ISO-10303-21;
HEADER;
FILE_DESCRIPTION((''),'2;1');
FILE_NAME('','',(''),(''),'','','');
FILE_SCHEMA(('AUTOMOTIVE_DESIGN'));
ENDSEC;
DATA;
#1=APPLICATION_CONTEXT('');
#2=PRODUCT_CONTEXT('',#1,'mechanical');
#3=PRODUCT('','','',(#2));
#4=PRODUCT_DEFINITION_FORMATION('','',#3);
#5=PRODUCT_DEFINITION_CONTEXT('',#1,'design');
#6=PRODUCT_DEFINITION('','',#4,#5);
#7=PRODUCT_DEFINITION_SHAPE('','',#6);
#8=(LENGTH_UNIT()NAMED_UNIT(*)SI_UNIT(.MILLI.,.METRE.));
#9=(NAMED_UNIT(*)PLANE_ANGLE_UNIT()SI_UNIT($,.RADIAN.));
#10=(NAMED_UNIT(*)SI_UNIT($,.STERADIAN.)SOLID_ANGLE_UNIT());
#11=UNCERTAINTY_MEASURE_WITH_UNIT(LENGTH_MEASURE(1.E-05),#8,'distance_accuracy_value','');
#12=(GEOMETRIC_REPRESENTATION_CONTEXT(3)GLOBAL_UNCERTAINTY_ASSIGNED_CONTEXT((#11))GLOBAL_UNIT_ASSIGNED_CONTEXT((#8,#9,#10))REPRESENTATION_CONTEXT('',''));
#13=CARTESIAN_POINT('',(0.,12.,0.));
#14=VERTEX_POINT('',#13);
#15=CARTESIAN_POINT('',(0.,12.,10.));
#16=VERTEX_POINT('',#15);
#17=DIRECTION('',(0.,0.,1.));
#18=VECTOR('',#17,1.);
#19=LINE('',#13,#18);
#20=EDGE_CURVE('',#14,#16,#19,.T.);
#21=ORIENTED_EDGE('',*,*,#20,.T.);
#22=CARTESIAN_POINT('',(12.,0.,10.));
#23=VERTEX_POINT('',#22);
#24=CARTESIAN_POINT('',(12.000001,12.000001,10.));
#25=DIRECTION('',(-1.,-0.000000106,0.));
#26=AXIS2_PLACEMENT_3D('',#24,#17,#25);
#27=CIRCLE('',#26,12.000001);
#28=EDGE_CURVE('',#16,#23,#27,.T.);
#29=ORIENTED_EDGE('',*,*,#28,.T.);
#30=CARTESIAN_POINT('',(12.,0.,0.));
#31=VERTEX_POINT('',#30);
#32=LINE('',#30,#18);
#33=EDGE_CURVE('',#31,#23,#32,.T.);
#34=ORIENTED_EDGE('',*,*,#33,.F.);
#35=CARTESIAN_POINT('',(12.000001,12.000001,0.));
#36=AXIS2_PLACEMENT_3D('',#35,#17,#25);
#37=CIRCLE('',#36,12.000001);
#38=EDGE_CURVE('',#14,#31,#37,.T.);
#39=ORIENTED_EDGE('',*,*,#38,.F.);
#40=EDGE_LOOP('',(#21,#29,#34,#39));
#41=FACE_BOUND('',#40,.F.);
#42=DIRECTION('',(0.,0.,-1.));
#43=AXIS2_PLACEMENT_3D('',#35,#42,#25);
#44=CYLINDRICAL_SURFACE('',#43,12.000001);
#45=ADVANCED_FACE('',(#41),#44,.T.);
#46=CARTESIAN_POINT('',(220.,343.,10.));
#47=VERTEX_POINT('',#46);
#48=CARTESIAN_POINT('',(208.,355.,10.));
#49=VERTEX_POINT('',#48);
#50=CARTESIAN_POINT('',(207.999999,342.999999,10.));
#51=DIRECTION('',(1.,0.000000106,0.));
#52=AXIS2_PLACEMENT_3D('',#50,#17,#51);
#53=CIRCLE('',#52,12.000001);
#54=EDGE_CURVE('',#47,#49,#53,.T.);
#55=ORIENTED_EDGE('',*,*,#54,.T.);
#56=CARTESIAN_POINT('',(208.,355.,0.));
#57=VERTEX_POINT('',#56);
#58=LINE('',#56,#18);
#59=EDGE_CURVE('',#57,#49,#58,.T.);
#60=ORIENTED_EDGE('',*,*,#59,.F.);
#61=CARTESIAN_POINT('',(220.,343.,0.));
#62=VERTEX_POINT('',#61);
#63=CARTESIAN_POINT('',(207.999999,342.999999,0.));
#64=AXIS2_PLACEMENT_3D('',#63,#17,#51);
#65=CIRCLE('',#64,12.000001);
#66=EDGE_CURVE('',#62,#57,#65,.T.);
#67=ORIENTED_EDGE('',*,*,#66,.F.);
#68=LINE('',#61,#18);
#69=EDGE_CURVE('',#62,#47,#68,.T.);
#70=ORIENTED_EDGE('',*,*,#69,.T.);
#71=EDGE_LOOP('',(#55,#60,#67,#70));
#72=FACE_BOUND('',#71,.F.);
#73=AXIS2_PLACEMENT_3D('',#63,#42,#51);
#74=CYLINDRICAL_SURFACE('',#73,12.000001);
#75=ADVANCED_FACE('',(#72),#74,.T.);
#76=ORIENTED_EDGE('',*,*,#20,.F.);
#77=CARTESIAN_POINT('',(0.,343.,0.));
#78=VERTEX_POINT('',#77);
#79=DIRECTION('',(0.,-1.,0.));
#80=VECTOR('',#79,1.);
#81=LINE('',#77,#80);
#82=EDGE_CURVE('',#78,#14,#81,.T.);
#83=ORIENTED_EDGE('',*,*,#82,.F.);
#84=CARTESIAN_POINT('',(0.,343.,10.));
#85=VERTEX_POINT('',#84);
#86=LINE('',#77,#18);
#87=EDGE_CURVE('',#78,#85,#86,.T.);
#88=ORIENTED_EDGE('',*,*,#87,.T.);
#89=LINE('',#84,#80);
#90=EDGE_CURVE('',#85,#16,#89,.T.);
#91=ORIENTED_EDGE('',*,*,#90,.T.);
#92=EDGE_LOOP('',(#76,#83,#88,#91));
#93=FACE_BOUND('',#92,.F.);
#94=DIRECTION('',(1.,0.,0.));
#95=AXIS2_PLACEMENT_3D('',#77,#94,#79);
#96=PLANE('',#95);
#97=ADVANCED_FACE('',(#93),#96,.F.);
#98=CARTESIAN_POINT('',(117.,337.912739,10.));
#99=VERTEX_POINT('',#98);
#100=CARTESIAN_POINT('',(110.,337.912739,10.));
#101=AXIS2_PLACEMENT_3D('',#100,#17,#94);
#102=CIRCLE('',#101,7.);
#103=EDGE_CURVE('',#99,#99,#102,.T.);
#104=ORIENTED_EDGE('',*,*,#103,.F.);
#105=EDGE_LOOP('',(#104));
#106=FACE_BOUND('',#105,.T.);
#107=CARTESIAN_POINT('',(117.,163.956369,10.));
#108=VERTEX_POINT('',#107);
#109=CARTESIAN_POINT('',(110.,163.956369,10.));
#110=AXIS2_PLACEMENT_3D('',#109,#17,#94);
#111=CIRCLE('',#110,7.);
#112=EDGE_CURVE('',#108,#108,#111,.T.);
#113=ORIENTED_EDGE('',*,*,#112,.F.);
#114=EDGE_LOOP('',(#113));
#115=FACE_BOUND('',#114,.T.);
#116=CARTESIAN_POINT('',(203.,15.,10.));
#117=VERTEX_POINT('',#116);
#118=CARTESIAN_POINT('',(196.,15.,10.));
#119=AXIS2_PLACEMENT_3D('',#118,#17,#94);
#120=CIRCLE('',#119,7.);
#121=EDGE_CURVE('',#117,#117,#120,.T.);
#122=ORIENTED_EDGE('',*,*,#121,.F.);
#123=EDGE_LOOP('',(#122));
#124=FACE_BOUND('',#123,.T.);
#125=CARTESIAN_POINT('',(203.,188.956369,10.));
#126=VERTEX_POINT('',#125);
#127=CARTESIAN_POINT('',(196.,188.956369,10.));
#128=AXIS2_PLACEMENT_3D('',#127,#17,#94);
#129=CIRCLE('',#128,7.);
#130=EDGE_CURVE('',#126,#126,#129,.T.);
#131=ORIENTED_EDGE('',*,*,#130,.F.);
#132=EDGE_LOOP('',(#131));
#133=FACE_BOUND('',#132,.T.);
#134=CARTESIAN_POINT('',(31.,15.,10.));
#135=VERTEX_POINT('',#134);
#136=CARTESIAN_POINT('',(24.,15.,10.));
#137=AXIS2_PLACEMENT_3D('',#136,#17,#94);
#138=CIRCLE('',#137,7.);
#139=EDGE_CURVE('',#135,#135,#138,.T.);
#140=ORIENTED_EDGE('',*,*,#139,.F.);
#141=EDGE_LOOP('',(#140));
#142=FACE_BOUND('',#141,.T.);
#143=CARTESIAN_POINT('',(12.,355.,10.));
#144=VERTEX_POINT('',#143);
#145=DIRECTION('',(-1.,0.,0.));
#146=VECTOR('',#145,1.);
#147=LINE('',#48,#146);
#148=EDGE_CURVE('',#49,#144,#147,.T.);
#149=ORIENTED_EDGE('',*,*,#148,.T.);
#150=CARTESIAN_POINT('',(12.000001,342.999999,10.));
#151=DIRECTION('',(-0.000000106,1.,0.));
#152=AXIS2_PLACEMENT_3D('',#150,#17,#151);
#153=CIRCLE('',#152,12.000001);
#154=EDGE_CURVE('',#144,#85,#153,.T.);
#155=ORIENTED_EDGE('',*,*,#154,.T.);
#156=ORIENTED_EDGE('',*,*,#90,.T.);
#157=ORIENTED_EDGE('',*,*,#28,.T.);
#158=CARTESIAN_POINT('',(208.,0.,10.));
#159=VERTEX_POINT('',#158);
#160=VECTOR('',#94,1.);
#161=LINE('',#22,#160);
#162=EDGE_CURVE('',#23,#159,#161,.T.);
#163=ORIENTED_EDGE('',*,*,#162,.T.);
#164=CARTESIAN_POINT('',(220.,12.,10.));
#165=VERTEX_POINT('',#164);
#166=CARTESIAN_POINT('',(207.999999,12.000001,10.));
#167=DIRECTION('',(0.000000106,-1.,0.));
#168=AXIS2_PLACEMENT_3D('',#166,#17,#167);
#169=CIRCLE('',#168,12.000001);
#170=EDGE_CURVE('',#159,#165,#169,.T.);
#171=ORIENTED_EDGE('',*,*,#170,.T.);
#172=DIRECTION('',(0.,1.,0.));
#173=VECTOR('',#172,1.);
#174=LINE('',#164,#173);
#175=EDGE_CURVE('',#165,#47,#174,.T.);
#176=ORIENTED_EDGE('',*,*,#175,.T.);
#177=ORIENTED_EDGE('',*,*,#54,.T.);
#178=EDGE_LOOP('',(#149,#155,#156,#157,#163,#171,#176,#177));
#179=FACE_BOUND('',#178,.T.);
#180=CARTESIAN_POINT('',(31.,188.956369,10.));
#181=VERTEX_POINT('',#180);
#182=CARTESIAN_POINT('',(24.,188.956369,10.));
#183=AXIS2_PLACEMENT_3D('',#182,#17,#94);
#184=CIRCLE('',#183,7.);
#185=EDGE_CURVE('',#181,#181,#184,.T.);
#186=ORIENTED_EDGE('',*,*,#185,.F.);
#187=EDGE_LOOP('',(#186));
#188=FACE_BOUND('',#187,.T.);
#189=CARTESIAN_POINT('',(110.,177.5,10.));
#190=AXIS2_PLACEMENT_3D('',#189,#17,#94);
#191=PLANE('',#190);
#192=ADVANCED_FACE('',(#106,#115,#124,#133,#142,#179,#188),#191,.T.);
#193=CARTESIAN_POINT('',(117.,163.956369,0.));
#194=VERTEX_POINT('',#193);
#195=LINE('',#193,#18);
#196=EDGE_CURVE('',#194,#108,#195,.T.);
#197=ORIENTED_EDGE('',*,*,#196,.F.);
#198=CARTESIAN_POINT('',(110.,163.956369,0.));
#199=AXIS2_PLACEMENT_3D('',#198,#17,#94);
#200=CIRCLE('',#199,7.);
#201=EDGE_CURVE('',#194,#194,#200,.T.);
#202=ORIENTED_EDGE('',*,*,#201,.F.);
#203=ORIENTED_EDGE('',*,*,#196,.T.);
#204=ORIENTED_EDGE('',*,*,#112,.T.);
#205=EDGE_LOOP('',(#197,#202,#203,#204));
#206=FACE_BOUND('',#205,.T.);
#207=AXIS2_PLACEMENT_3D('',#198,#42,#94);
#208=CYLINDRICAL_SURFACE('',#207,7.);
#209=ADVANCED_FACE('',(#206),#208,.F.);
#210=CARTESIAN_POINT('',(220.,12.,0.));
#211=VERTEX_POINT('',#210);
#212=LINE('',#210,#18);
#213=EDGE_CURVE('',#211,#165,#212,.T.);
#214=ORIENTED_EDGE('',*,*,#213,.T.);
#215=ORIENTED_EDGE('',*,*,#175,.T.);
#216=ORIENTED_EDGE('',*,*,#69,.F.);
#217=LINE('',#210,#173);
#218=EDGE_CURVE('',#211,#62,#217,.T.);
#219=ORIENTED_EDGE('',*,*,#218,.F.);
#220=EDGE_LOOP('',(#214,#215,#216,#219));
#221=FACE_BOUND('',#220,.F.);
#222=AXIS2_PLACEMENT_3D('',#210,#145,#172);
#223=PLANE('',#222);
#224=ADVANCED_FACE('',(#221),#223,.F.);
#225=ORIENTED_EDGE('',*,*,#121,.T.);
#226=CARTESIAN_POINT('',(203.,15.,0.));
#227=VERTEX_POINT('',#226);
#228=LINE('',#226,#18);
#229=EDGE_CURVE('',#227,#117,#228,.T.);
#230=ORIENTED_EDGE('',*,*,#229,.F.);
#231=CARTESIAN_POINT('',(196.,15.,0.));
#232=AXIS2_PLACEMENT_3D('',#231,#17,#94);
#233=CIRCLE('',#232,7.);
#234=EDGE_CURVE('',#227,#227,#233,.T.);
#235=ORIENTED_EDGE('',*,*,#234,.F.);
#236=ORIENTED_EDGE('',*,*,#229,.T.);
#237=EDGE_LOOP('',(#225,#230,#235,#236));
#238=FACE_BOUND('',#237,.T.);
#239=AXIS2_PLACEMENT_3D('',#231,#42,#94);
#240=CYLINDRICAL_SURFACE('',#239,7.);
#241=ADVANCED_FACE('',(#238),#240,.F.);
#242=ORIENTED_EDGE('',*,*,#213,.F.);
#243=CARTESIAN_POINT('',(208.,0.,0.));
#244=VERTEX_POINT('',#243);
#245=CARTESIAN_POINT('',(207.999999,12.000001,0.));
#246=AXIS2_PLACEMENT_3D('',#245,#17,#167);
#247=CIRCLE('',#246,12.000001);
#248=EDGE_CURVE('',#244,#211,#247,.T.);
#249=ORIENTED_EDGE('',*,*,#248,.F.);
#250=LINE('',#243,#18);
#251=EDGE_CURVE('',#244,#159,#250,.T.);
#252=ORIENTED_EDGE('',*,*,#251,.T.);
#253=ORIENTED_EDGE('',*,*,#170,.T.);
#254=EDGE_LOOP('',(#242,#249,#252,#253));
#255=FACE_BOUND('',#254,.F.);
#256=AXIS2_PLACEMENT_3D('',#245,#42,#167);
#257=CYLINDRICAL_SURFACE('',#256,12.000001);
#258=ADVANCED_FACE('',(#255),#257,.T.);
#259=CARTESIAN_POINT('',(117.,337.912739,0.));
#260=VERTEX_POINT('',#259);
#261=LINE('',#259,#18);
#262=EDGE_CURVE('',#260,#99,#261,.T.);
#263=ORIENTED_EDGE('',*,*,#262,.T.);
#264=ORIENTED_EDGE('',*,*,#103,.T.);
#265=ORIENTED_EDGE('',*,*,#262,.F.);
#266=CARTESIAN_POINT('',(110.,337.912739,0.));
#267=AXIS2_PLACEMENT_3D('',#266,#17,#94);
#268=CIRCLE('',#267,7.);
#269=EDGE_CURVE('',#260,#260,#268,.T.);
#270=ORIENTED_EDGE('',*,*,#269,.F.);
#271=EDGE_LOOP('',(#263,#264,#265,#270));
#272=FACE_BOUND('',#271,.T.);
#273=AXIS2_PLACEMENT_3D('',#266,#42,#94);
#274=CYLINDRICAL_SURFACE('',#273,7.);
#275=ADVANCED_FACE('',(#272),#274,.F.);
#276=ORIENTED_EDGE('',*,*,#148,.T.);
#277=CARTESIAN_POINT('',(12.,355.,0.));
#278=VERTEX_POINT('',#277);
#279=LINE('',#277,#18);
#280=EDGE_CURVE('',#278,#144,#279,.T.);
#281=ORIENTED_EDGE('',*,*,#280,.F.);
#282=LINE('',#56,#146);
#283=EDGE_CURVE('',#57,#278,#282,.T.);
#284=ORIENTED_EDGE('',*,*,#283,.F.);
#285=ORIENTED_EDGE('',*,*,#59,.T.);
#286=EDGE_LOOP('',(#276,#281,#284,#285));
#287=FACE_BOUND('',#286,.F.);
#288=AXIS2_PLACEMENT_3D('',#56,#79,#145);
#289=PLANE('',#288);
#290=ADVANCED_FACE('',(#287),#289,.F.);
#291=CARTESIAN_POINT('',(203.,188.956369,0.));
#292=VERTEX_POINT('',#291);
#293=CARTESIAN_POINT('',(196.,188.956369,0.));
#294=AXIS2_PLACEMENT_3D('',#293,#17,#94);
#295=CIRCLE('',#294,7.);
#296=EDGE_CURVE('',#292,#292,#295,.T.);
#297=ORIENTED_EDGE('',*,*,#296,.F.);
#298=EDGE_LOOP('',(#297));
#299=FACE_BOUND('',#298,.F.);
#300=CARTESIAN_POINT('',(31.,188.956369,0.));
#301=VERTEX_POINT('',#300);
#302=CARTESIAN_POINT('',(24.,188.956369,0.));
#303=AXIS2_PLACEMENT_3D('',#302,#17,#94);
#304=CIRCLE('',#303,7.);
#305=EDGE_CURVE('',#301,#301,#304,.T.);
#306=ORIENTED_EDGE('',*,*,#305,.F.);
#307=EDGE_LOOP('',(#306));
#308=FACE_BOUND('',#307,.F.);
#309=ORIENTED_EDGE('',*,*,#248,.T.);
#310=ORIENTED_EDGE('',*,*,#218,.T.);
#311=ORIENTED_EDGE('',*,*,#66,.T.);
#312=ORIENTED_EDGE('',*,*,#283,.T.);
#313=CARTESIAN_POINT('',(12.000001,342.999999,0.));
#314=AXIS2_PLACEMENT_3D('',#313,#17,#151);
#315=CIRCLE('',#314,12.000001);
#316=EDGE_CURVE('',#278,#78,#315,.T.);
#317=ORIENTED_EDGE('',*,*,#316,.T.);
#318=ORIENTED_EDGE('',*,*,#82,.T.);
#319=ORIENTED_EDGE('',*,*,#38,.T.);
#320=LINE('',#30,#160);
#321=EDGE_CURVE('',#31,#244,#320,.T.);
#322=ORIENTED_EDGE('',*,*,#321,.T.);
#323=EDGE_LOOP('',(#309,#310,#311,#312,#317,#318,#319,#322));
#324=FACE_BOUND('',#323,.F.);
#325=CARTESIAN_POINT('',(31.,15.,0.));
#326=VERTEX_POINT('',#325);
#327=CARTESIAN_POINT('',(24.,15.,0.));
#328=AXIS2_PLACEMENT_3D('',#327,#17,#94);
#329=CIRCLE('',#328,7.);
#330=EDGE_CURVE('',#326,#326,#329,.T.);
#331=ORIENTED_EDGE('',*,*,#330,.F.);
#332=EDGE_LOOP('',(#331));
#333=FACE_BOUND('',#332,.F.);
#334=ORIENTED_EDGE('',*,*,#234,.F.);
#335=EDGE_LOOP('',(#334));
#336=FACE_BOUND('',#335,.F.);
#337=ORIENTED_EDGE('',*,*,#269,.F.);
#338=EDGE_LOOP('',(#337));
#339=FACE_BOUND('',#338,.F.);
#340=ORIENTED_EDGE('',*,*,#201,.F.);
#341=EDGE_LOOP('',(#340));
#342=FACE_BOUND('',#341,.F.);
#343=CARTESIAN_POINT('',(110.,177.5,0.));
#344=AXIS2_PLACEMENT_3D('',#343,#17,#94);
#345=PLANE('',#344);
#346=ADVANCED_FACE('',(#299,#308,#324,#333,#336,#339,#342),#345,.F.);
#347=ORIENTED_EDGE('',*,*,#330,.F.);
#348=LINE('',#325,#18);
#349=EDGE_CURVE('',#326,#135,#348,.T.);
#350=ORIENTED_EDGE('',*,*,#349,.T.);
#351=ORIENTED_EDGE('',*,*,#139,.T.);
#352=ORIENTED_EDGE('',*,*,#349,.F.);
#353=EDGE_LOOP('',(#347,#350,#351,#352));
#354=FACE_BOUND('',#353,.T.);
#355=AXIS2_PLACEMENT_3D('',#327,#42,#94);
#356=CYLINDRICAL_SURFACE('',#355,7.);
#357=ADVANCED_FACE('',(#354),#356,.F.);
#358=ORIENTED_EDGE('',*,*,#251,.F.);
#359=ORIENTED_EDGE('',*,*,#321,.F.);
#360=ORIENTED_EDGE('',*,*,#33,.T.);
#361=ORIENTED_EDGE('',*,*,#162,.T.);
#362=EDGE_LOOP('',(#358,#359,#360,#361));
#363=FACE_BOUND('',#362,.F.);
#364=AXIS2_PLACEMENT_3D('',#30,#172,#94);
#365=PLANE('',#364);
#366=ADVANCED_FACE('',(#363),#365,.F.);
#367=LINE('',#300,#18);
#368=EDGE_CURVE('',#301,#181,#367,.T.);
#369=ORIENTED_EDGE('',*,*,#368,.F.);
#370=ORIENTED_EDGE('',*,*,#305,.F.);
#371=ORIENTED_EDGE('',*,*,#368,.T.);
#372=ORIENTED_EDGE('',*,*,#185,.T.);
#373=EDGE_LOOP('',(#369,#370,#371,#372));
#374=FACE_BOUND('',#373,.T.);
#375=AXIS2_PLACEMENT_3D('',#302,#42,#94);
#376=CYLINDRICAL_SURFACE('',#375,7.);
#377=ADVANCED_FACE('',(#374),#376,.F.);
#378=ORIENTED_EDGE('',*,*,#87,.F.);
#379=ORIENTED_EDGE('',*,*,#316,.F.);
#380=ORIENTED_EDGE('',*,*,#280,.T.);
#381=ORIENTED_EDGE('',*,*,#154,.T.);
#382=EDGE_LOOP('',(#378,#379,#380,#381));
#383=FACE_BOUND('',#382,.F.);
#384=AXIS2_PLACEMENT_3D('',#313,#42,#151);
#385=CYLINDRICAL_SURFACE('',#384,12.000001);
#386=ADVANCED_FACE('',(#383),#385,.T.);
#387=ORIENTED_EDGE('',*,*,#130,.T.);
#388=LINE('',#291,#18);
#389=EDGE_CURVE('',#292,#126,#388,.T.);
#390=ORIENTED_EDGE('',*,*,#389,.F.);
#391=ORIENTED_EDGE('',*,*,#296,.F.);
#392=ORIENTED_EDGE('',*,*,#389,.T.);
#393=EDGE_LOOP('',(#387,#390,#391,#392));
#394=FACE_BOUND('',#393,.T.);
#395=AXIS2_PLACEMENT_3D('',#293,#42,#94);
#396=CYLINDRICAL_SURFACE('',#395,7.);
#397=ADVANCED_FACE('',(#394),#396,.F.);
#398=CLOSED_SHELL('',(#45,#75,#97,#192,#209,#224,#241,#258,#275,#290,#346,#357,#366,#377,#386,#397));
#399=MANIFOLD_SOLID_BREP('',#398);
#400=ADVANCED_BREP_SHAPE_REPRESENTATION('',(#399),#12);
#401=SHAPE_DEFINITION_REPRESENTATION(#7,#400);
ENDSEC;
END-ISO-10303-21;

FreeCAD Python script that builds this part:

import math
import FreeCAD as App
import Part
import Sketcher

V = App.Vector
Q = App.Units.Quantity

doc = App.newDocument("Part")
body = doc.addObject("PartDesign::Body", "Body")

# Sketch on XY plane
sketch1 = doc.addObject("Sketcher::SketchObject", "Sketch")
body.addObject(sketch1)
sketch1.AttachmentSupport = (doc.XY_Plane, [""])
sketch1.MapMode = "FlatFace"
sketch1.addGeometry([
    Part.ArcOfCircle(Part.Circle(V(12.000001, 12.000001, 0), V(0, 0, 1), 12.000001), math.radians(-179.999994), math.radians(-90.000006)),  # 0
    Part.LineSegment(V(12, 0, 0), V(208, 0, 0)),  # 1
    Part.ArcOfCircle(Part.Circle(V(207.999999, 12.000001, 0), V(0, 0, 1), 12.000001), math.radians(-89.999994), math.radians(-0.000006)),  # 2
    Part.LineSegment(V(220, 12, 0), V(220, 343, 0)),  # 3
    Part.ArcOfCircle(Part.Circle(V(207.999999, 342.999999, 0), V(0, 0, 1), 12.000001), math.radians(0.000006), math.radians(89.999994)),  # 4
    Part.LineSegment(V(208, 355, 0), V(12, 355, 0)),  # 5
    Part.ArcOfCircle(Part.Circle(V(12.000001, 342.999999, 0), V(0, 0, 1), 12.000001), math.radians(90.000006), math.radians(179.999994)),  # 6
    Part.LineSegment(V(0, 343, 0), V(0, 12, 0)),  # 7
    Part.Circle(V(24, 15, 0), V(0, 0, 1), 7),  # 8
    Part.Circle(V(196, 15, 0), V(0, 0, 1), 7),  # 9
    Part.Circle(V(110, 163.956369, 0), V(0, 0, 1), 7),  # 10
    Part.Circle(V(24, 188.956369, 0), V(0, 0, 1), 7),  # 11
    Part.Circle(V(196, 188.956369, 0), V(0, 0, 1), 7),  # 12
    Part.Circle(V(110, 337.912739, 0), V(0, 0, 1), 7),  # 13
], False)
sketch1.addConstraint([
    Sketcher.Constraint("Tangent", 0, 2, 1, 1),
    Sketcher.Constraint("Tangent", 1, 2, 2, 1),
    Sketcher.Constraint("Tangent", 2, 2, 3, 1),
    Sketcher.Constraint("Tangent", 3, 2, 4, 1),
    Sketcher.Constraint("Tangent", 4, 2, 5, 1),
    Sketcher.Constraint("Tangent", 5, 2, 6, 1),
    Sketcher.Constraint("Tangent", 6, 2, 7, 1),
    Sketcher.Constraint("Tangent", 7, 2, 0, 1),
    Sketcher.Constraint("Horizontal", 1),
    Sketcher.Constraint("Vertical", 3),
    Sketcher.Constraint("Horizontal", 5),
    Sketcher.Constraint("Vertical", 7),
    Sketcher.Constraint("Equal", 0, 2),
    Sketcher.Constraint("Equal", 2, 4),
    Sketcher.Constraint("Equal", 4, 6),
    Sketcher.Constraint("Equal", 8, 9),
    Sketcher.Constraint("Equal", 9, 10),
    Sketcher.Constraint("Equal", 10, 11),
    Sketcher.Constraint("Equal", 11, 12),
    Sketcher.Constraint("Equal", 12, 13),
    Sketcher.Constraint("PointOnObject", 0, 2, -1),
    Sketcher.Constraint("PointOnObject", 6, 2, -2),
    Sketcher.Constraint("Horizontal", 8, 3, 9, 3),
    Sketcher.Constraint("Horizontal", 11, 3, 12, 3),
    Sketcher.Constraint("Vertical", 8, 3, 11, 3),
    Sketcher.Constraint("Vertical", 9, 3, 12, 3),
    Sketcher.Constraint("Vertical", 10, 3, 13, 3),
    Sketcher.Constraint("Diameter", 8, Q("14 mm")),
    Sketcher.Constraint("Radius", 0, Q("12.000001 mm")),
    Sketcher.Constraint("DistanceX", 1, 1, 1, 2, Q("196 mm")),
    Sketcher.Constraint("DistanceY", 3, 1, 3, 2, Q("331 mm")),
    Sketcher.Constraint("DistanceX", -1, 1, 8, 3, Q("24 mm")),
    Sketcher.Constraint("DistanceY", -1, 1, 8, 3, Q("15 mm")),
    Sketcher.Constraint("DistanceX", -1, 1, 9, 3, Q("196 mm")),
    Sketcher.Constraint("DistanceX", -1, 1, 10, 3, Q("110 mm")),
    Sketcher.Constraint("DistanceY", 10, 3, 11, 3, Q("25 mm")),
    Sketcher.Constraint("DistanceY", -1, 1, 10, 3, Q("163.956369 mm")),
    Sketcher.Constraint("DistanceY", -1, 1, 13, 3, Q("337.912739 mm")),
])
pad1 = doc.addObject("PartDesign::Pad", "Pad")
body.addObject(pad1)
pad1.Profile = sketch1
pad1.Length = 10

doc.recompute()
